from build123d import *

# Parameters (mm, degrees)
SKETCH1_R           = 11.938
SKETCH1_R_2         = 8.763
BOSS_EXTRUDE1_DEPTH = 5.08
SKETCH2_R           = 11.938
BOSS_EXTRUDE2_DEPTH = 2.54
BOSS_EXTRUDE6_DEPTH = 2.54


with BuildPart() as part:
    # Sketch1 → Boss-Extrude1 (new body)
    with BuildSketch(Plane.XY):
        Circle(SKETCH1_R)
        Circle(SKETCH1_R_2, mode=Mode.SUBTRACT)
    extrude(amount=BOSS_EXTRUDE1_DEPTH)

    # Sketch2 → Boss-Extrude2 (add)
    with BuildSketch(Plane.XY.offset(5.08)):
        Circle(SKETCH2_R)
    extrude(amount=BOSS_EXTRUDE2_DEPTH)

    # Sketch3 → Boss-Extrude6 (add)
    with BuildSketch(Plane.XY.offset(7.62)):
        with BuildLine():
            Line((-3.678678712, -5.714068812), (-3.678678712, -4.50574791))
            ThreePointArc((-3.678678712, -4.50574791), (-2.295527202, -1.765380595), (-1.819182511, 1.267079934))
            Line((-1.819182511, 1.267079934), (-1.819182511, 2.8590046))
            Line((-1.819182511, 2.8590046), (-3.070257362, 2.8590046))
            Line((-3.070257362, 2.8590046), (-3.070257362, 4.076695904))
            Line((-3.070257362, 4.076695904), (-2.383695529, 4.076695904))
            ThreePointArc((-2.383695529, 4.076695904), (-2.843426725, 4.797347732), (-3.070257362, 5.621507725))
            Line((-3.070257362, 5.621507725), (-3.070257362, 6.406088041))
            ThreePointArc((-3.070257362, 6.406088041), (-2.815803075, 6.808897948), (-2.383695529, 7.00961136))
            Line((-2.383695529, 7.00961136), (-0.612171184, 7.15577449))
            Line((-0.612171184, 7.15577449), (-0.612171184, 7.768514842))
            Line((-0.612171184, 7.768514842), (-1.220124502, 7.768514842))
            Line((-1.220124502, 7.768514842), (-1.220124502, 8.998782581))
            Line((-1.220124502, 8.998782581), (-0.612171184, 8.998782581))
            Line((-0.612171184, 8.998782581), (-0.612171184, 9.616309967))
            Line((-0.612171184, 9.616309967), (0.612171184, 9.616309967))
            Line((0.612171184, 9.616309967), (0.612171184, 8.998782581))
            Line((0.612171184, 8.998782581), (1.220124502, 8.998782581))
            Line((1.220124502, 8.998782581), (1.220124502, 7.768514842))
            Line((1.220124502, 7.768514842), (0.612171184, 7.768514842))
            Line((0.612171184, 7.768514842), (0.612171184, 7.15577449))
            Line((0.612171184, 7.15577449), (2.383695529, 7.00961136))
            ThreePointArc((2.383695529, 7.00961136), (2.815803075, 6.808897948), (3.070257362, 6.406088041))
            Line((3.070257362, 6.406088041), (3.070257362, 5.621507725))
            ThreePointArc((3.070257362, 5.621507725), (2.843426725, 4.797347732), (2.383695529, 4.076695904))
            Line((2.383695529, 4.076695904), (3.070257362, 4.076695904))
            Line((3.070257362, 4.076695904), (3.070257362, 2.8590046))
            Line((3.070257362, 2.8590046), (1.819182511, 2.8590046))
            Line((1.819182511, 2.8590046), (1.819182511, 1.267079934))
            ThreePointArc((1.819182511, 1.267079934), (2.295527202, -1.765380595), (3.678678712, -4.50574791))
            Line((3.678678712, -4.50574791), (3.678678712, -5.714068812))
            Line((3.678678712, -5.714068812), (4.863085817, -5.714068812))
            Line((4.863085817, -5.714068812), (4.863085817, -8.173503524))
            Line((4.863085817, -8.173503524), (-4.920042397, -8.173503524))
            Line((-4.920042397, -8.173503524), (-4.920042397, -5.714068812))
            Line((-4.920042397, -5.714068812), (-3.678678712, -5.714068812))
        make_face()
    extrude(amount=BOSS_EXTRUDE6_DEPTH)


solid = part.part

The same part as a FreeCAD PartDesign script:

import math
import FreeCAD as App
import Part
import Sketcher
Q = App.Units.Quantity

doc = App.newDocument("Part")
body = doc.addObject("PartDesign::Body", "Body")

sketch1 = doc.addObject("Sketcher::SketchObject", "Sketch")
body.addObject(sketch1)
sketch1.AttachmentSupport = (doc.XY_Plane, [""])
sketch1.MapMode = "FlatFace"
sketch1.addGeometry([
    Part.Circle(App.Vector(0, 0, 0), App.Vector(0, 0, 1), 11.938),
    Part.Circle(App.Vector(0, 0, 0), App.Vector(0, 0, 1), 8.763),
], False)
sketch1.addConstraint([
    Sketcher.Constraint("Coincident", 0, 3, -1, 1),
    Sketcher.Constraint("Coincident", 1, 3, -1, 1),
    Sketcher.Constraint("Diameter", 0, Q("0.94 in")),
    Sketcher.Constraint("Diameter", 1, Q("0.69 in")),
])
pad1 = doc.addObject("PartDesign::Pad", "Pad")
body.addObject(pad1)
pad1.Profile = sketch1
pad1.Length = Q("0.2 in")

sketch2 = doc.addObject("Sketcher::SketchObject", "Sketch001")
body.addObject(sketch2)
sketch2.AttachmentSupport = (doc.XY_Plane, [""])
sketch2.MapMode = "FlatFace"
sketch2.AttachmentOffset = App.Placement(App.Vector(0, 0, 0.2 * 25.4), App.Rotation())
sketch2.addGeometry(Part.Circle(App.Vector(0, 0, 0), App.Vector(0, 0, 1), 11.938), False)
sketch2.addConstraint([
    Sketcher.Constraint("Coincident", 0, 3, -1, 1),
    Sketcher.Constraint("Diameter", 0, Q("0.94 in")),
])
pad2 = doc.addObject("PartDesign::Pad", "Pad001")
body.addObject(pad2)
pad2.Profile = sketch2
pad2.Length = Q("0.1 in")

sketch3 = doc.addObject("Sketcher::SketchObject", "Sketch002")
body.addObject(sketch3)
sketch3.AttachmentSupport = (doc.XY_Plane, [""])
sketch3.MapMode = "FlatFace"
sketch3.AttachmentOffset = App.Placement(App.Vector(0, 0, 0.3 * 25.4), App.Rotation())
sketch3.addGeometry([
    Part.LineSegment(App.Vector(-3.678679, -4.505748, 0), App.Vector(-3.678679, -5.714069, 0)),
    Part.LineSegment(App.Vector(-3.678679, -5.714069, 0), App.Vector(-4.920042, -5.714069, 0)),
    Part.LineSegment(App.Vector(-4.920042, -5.714069, 0), App.Vector(-4.920042, -8.173504, 0)),
    Part.LineSegment(App.Vector(-4.920042, -8.173504, 0), App.Vector(4.863086, -8.173504, 0)),
    Part.LineSegment(App.Vector(4.863086, -8.173504, 0), App.Vector(4.863086, -5.714069, 0)),
    Part.LineSegment(App.Vector(4.863086, -5.714069, 0), App.Vector(3.678679, -5.714069, 0)),
    Part.LineSegment(App.Vector(3.678679, -5.714069, 0), App.Vector(3.678679, -4.505748, 0)),
    Part.ArcOfCircle(Part.Circle(App.Vector(11.709837, 1.26708, 0), App.Vector(0, 0, 1), 9.890654), math.radians(-180), math.radians(-144.291271)),
    Part.LineSegment(App.Vector(1.819183, 1.26708, 0), App.Vector(1.819183, 2.859005, 0)),
    Part.LineSegment(App.Vector(1.819183, 2.859005, 0), App.Vector(3.070257, 2.859005, 0)),
    Part.LineSegment(App.Vector(3.070257, 2.859005, 0), App.Vector(3.070257, 4.076696, 0)),
    Part.LineSegment(App.Vector(3.070257, 4.076696, 0), App.Vector(2.383696, 4.076696, 0)),
    Part.ArcOfCircle(Part.Circle(App.Vector(0.223547, 5.961703, 0), App.Vector(0, 0, 1), 2.866966), math.radians(-41.10887), math.radians(-6.814795)),
    Part.LineSegment(App.Vector(3.070257, 5.621508, 0), App.Vector(3.070257, 6.406088, 0)),
    Part.ArcOfCircle(Part.Circle(App.Vector(2.258818, 6.175277, 0), App.Vector(0, 0, 1), 0.843628), math.radians(15.878196), math.radians(81.487522)),
    Part.LineSegment(App.Vector(2.383696, 7.009611, 0), App.Vector(0.612171, 7.155774, 0)),
    Part.LineSegment(App.Vector(0.612171, 7.155774, 0), App.Vector(0.612171, 7.768515, 0)),
    Part.LineSegment(App.Vector(0.612171, 7.768515, 0), App.Vector(1.220125, 7.768515, 0)),
    Part.LineSegment(App.Vector(1.220125, 7.768515, 0), App.Vector(1.220125, 8.998783, 0)),
    Part.LineSegment(App.Vector(1.220125, 8.998783, 0), App.Vector(0.612171, 8.998783, 0)),
    Part.LineSegment(App.Vector(0.612171, 8.998783, 0), App.Vector(0.612171, 9.61631, 0)),
    Part.LineSegment(App.Vector(0.612171, 9.61631, 0), App.Vector(-0.612171, 9.61631, 0)),
    Part.LineSegment(App.Vector(-0.612171, 9.61631, 0), App.Vector(-0.612171, 8.998783, 0)),
    Part.LineSegment(App.Vector(-0.612171, 8.998783, 0), App.Vector(-1.220125, 8.998783, 0)),
    Part.LineSegment(App.Vector(-1.220125, 8.998783, 0), App.Vector(-1.220125, 7.768515, 0)),
    Part.LineSegment(App.Vector(-1.220125, 7.768515, 0), App.Vector(-0.612171, 7.768515, 0)),
    Part.LineSegment(App.Vector(-0.612171, 7.768515, 0), App.Vector(-0.612171, 7.155774, 0)),
    Part.LineSegment(App.Vector(-0.612171, 7.155774, 0), App.Vector(-2.383696, 7.009611, 0)),
    Part.ArcOfCircle(Part.Circle(App.Vector(-2.258818, 6.175277, 0), App.Vector(0, 0, 1), 0.843628), math.radians(98.512478), math.radians(164.121804)),
    Part.LineSegment(App.Vector(-3.070257, 6.406088, 0), App.Vector(-3.070257, 5.621508, 0)),
    Part.ArcOfCircle(Part.Circle(App.Vector(-0.223547, 5.961703, 0), App.Vector(0, 0, 1), 2.866966), math.radians(-173.185205), math.radians(-138.89113)),
    Part.LineSegment(App.Vector(-2.383696, 4.076696, 0), App.Vector(-3.070257, 4.076696, 0)),
    Part.LineSegment(App.Vector(-3.070257, 4.076696, 0), App.Vector(-3.070257, 2.859005, 0)),
    Part.LineSegment(App.Vector(-3.070257, 2.859005, 0), App.Vector(-1.819183, 2.859005, 0)),
    Part.LineSegment(App.Vector(-1.819183, 2.859005, 0), App.Vector(-1.819183, 1.26708, 0)),
    Part.ArcOfCircle(Part.Circle(App.Vector(-11.709837, 1.26708, 0), App.Vector(0, 0, 1), 9.890654), math.radians(-35.708729), math.radians(0)),
], False)
sketch3.addConstraint([
    Sketcher.Constraint("Coincident", 0, 2, 1, 1),
    Sketcher.Constraint("Coincident", 1, 2, 2, 1),
    Sketcher.Constraint("Coincident", 2, 2, 3, 1),
    Sketcher.Constraint("Coincident", 3, 2, 4, 1),
    Sketcher.Constraint("Coincident", 4, 2, 5, 1),
    Sketcher.Constraint("Coincident", 5, 2, 6, 1),
    Sketcher.Constraint("Coincident", 6, 2, 7, 2),
    Sketcher.Constraint("Tangent", 7, 1, 8, 1),
    Sketcher.Constraint("Coincident", 8, 2, 9, 1),
    Sketcher.Constraint("Coincident", 9, 2, 10, 1),
    Sketcher.Constraint("Coincident", 10, 2, 11, 1),
    Sketcher.Constraint("Coincident", 11, 2, 12, 1),
    Sketcher.Constraint("Coincident", 12, 2, 13, 1),
    Sketcher.Constraint("Coincident", 13, 2, 14, 1),
    Sketcher.Constraint("Coincident", 14, 2, 15, 1),
    Sketcher.Constraint("Coincident", 15, 2, 16, 1),
    Sketcher.Constraint("Coincident", 16, 2, 17, 1),
    Sketcher.Constraint("Coincident", 17, 2, 18, 1),
    Sketcher.Constraint("Coincident", 18, 2, 19, 1),
    Sketcher.Constraint("Coincident", 19, 2, 20, 1),
    Sketcher.Constraint("Coincident", 20, 2, 21, 1),
    Sketcher.Constraint("Coincident", 21, 2, 22, 1),
    Sketcher.Constraint("Coincident", 22, 2, 23, 1),
    Sketcher.Constraint("Coincident", 23, 2, 24, 1),
    Sketcher.Constraint("Coincident", 24, 2, 25, 1),
    Sketcher.Constraint("Coincident", 25, 2, 26, 1),
    Sketcher.Constraint("Coincident", 26, 2, 27, 1),
    Sketcher.Constraint("Coincident", 27, 2, 28, 1),
    Sketcher.Constraint("Coincident", 28, 2, 29, 1),
    Sketcher.Constraint("Coincident", 29, 2, 30, 1),
    Sketcher.Constraint("Coincident", 30, 2, 31, 1),
    Sketcher.Constraint("Coincident", 31, 2, 32, 1),
    Sketcher.Constraint("Coincident", 32, 2, 33, 1),
    Sketcher.Constraint("Coincident", 33, 2, 34, 1),
    Sketcher.Constraint("Tangent", 34, 2, 35, 2),
    Sketcher.Constraint("Coincident", 35, 1, 0, 1),
    Sketcher.Constraint("Vertical", 0),
    Sketcher.Constraint("Horizontal", 1),
    Sketcher.Constraint("Vertical", 2),
    Sketcher.Constraint("Horizontal", 3),
    Sketcher.Constraint("Vertical", 4),
    Sketcher.Constraint("Horizontal", 5),
    Sketcher.Constraint("Vertical", 6),
    Sketcher.Constraint("Vertical", 8),
    Sketcher.Constraint("Horizontal", 9),
    Sketcher.Constraint("Vertical", 10),
    Sketcher.Constraint("Horizontal", 11),
    Sketcher.Constraint("Vertical", 13),
    Sketcher.Constraint("Vertical", 16),
    Sketcher.Constraint("Horizontal", 17),
    Sketcher.Constraint("Vertical", 18),
    Sketcher.Constraint("Horizontal", 19),
    Sketcher.Constraint("Vertical", 20),
    Sketcher.Constraint("Horizontal", 21),
    Sketcher.Constraint("Vertical", 22),
    Sketcher.Constraint("Horizontal", 23),
    Sketcher.Constraint("Vertical", 24),
    Sketcher.Constraint("Horizontal", 25),
    Sketcher.Constraint("Vertical", 26),
    Sketcher.Constraint("Vertical", 29),
    Sketcher.Constraint("Horizontal", 31),
    Sketcher.Constraint("Vertical", 32),
    Sketcher.Constraint("Horizontal", 33),
    Sketcher.Constraint("Vertical", 34),
    Sketcher.Constraint("Equal", 14, 28),
    Sketcher.Constraint("Equal", 12, 30),
    Sketcher.Constraint("Equal", 7, 35),
    Sketcher.Constraint("Symmetric", 14, 3, 28, 3, -2),
    Sketcher.Constraint("Symmetric", 12, 3, 30, 3, -2),
    Sketcher.Constraint("Symmetric", 7, 3, 35, 3, -2),
    Sketcher.Constraint("Symmetric", 0, 2, 5, 2, -2),
    Sketcher.Constraint("Symmetric", 19, 2, 22, 2, -2),
    Sketcher.Constraint("Symmetric", 17, 2, 24, 2, -2),
    Sketcher.Constraint("Symmetric", 15, 2, 26, 2, -2),
    Sketcher.Constraint("Symmetric", 10, 2, 31, 2, -2),
    Sketcher.Constraint("Horizontal", 14, 2, 27, 2),
    Sketcher.Constraint("Horizontal", 13, 2, 28, 2),
    Sketcher.Constraint("Horizontal", 9, 2, 32, 2),
    Sketcher.Constraint("Vertical", 10, 2, 12, 2),
    Sketcher.Constraint("Vertical", 11, 2, 14, 2),
    Sketcher.Constraint("Vertical", 16, 2, 19, 2),
    Sketcher.Constraint("DistanceY", -1, 1, 10, 2, Q("0.1604998 in")),
    Sketcher.Constraint("Radius", 7, 9.890654),
    Sketcher.Constraint("Radius", 12, 2.866966),
    Sketcher.Constraint("Radius", 14, 0.843628),
    Sketcher.Constraint("DistanceX", 0, 2, 28, 3, Q("0.0559 in")),
    Sketcher.Constraint("DistanceY", 3, 2, 6, 2, Q("0.1443998 in")),
    Sketcher.Constraint("DistanceX", 12, 3, 15, 2, Q("0.0153002 in")),
    Sketcher.Constraint("DistanceX", 3, 1, 3, 2, 9.783128),
    Sketcher.Constraint("DistanceX", 11, 2, 11, 1, 0.686562),
    Sketcher.Constraint("DistanceY", 0, 2, 0, 1, 1.208321),
    Sketcher.Constraint("DistanceY", 10, 1, 10, 2, 1.217691),
    Sketcher.Constraint("DistanceY", 13, 1, 13, 2, 0.78458),
    Sketcher.Constraint("DistanceY", 16, 1, 16, 2, 0.61274),
    Sketcher.Constraint("DistanceX", 28, 3, 7, 1, 4.078),
    Sketcher.Constraint("DistanceY", 8, 2, 12, 3, 3.102698),
    Sketcher.Constraint("DistanceX", 1, 2, 1, 1, 1.241364),
    Sketcher.Constraint("DistanceX", 5, 2, 5, 1, 1.184407),
    Sketcher.Constraint("DistanceX", 9, 1, 9, 2, 1.251075),
    Sketcher.Constraint("DistanceX", 17, 1, 17, 2, 0.607953),
    Sketcher.Constraint("DistanceY", 8, 1, 8, 2, 1.591925),
    Sketcher.Constraint("DistanceY", 18, 1, 18, 2, 1.230268),
    Sketcher.Constraint("DistanceY", 20, 1, 20, 2, 0.617527),
    Sketcher.Constraint("DistanceY", -1, 1, 20, 2, 9.61631),
])
pad3 = doc.addObject("PartDesign::Pad", "Pad002")
body.addObject(pad3)
pad3.Profile = sketch3
pad3.Length = Q("0.1 in")

doc.recompute()
